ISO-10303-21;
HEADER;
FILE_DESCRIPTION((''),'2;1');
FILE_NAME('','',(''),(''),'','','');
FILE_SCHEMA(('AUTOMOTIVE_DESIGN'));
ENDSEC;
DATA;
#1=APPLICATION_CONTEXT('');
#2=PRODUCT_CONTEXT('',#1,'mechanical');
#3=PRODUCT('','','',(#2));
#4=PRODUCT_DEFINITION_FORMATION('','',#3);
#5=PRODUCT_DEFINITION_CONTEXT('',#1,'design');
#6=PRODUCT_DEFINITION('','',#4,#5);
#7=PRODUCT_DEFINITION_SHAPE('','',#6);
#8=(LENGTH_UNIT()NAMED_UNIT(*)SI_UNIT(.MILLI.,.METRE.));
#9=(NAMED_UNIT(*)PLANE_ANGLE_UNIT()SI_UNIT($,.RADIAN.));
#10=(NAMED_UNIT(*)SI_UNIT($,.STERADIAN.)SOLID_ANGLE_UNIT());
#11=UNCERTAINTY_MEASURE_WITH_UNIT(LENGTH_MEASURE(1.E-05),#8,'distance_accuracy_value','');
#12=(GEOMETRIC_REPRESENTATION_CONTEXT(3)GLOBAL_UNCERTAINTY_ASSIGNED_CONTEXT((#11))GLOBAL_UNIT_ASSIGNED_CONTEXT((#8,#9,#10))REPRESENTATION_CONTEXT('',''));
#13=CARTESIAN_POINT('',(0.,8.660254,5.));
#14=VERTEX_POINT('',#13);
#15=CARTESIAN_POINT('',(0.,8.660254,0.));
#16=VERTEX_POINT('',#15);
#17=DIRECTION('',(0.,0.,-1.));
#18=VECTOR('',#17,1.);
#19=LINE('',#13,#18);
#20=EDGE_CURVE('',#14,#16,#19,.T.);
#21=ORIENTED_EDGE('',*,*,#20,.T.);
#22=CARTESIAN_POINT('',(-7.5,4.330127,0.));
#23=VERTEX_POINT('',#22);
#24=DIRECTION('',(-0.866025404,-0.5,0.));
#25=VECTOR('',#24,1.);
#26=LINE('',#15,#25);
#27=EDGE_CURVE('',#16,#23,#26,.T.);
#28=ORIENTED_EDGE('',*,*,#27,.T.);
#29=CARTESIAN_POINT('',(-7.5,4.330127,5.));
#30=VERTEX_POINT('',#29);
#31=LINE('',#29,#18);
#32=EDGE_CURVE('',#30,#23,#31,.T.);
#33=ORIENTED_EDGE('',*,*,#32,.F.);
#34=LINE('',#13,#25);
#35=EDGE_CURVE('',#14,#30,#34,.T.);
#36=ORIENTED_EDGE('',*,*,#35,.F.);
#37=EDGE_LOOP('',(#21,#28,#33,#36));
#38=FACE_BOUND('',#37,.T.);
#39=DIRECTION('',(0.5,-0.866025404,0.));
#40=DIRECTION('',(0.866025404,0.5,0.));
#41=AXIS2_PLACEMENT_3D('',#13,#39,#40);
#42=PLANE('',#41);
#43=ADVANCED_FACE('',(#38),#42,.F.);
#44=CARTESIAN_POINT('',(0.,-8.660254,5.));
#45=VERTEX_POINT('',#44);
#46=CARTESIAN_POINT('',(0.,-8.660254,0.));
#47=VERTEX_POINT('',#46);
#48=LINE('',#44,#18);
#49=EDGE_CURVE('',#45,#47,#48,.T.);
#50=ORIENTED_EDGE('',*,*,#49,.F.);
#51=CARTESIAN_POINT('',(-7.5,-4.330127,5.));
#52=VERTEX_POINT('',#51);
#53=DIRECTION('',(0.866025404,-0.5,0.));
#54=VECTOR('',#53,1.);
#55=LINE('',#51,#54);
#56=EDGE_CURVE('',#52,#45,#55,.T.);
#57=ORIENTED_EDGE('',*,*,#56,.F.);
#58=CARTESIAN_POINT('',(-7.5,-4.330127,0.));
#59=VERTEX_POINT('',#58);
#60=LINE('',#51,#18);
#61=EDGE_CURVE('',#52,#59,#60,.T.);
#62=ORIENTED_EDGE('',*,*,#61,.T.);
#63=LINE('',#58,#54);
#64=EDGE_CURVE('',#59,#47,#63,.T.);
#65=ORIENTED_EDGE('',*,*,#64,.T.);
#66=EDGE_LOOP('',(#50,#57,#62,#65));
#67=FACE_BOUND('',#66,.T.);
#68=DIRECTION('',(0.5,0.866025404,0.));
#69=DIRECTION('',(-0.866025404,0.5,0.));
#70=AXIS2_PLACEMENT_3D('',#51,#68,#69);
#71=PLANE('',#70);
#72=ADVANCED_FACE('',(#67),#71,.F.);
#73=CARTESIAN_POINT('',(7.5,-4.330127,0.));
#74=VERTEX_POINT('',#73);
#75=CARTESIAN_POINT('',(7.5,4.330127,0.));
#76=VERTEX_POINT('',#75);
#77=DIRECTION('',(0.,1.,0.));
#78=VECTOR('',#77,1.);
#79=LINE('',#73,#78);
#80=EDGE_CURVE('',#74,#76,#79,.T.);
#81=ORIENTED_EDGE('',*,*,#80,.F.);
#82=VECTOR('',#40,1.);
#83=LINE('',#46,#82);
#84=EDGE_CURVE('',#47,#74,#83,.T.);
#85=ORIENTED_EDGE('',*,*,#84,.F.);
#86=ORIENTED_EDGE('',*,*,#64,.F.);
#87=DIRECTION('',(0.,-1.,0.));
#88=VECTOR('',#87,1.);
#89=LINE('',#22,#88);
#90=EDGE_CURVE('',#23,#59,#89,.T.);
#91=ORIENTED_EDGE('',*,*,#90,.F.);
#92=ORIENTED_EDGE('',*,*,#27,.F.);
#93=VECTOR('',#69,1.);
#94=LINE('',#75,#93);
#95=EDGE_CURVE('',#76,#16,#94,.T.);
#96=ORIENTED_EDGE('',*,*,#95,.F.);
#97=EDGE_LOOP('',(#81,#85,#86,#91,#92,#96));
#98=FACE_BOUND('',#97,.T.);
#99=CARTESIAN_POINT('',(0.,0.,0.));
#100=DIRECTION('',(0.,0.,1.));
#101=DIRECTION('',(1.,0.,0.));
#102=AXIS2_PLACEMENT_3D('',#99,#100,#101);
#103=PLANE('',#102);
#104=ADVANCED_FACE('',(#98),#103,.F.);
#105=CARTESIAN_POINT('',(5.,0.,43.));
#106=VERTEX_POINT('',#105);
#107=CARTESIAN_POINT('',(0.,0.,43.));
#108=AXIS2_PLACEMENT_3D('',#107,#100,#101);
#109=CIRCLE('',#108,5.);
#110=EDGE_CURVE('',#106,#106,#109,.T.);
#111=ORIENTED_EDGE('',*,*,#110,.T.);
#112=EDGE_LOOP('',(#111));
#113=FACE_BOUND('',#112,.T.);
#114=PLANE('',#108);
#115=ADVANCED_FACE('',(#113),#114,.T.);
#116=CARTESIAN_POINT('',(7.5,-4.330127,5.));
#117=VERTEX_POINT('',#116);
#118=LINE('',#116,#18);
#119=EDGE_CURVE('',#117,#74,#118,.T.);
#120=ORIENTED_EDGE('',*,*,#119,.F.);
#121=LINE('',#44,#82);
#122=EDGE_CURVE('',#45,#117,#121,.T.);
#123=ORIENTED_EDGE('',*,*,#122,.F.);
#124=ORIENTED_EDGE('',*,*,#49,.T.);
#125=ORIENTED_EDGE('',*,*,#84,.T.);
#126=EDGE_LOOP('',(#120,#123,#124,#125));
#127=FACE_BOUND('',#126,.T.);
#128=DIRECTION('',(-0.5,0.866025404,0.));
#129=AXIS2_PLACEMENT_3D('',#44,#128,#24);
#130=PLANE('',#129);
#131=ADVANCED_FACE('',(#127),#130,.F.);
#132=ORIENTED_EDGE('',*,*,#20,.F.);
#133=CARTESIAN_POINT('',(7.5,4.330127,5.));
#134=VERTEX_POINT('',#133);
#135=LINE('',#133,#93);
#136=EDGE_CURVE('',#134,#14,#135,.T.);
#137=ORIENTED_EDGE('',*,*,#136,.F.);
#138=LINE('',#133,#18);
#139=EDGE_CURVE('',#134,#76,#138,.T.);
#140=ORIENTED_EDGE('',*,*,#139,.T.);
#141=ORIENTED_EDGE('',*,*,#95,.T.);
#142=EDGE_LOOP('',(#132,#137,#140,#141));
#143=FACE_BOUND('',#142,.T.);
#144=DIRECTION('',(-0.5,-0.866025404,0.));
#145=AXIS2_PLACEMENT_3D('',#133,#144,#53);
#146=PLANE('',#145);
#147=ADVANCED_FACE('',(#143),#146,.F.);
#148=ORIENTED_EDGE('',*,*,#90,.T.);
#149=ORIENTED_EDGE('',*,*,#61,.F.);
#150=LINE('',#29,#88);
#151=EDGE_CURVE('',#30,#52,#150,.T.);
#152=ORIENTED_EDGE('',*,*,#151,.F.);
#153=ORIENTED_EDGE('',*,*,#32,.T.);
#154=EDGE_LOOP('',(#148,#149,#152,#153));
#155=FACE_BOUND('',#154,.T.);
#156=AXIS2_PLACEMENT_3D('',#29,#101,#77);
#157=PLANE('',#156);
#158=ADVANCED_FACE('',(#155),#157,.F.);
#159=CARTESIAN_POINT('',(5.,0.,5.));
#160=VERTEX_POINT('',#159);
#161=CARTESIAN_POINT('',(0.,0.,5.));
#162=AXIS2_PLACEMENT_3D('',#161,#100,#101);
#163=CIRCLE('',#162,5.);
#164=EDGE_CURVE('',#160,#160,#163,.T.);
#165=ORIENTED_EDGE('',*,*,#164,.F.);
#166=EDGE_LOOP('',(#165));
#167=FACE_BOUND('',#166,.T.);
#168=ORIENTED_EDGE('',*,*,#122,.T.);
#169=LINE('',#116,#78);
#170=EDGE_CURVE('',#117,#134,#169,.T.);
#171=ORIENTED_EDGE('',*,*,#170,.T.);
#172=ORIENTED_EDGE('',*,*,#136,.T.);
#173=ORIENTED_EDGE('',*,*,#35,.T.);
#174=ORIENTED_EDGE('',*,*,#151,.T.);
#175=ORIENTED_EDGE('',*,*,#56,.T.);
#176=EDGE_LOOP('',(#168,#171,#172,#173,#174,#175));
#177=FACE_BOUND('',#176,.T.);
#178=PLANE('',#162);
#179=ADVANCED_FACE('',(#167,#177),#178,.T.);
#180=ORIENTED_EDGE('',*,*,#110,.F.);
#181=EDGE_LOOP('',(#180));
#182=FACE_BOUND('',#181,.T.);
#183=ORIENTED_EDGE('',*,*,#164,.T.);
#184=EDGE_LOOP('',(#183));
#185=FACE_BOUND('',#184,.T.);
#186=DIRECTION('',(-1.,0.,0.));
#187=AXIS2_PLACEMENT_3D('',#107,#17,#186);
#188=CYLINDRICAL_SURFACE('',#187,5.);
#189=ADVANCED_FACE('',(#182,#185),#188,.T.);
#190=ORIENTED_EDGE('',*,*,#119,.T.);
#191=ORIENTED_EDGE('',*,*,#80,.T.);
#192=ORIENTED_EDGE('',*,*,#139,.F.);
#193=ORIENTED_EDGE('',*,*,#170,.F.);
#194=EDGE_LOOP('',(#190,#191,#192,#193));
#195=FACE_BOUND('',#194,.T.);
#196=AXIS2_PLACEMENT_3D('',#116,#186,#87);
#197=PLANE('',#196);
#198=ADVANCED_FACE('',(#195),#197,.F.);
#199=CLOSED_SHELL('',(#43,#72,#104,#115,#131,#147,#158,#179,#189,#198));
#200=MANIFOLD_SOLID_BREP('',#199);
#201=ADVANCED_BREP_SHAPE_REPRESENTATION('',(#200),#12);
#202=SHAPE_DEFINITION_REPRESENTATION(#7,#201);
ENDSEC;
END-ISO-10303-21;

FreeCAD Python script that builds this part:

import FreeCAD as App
import Part
import Sketcher
from FreeCAD import Vector
Q = App.Units.Quantity

doc = App.newDocument("Part")
body = doc.addObject("PartDesign::Body", "Body")

# Sketch on XY plane
sketch1 = body.newObject("Sketcher::SketchObject", "Sketch")
sketch1.AttachmentSupport = (doc.getObject("XY_Plane"), [""])
sketch1.MapMode = "FlatFace"
sketch1.addGeometry(Part.LineSegment(Vector(0, 8.660254, 0), Vector(-7.5, 4.330127, 0)), False)
sketch1.addGeometry(Part.LineSegment(Vector(-7.5, 4.330127, 0), Vector(-7.5, -4.330127, 0)), False)
sketch1.addGeometry(Part.LineSegment(Vector(-7.5, -4.330127, 0), Vector(0, -8.660254, 0)), False)
sketch1.addGeometry(Part.LineSegment(Vector(0, -8.660254, 0), Vector(7.5, -4.330127, 0)), False)
sketch1.addGeometry(Part.LineSegment(Vector(7.5, -4.330127, 0), Vector(7.5, 4.330127, 0)), False)
sketch1.addGeometry(Part.LineSegment(Vector(7.5, 4.330127, 0), Vector(0, 8.660254, 0)), False)
sketch1.addConstraint(Sketcher.Constraint("Coincident", 0, 2, 1, 1))
sketch1.addConstraint(Sketcher.Constraint("Coincident", 1, 2, 2, 1))
sketch1.addConstraint(Sketcher.Constraint("Coincident", 2, 2, 3, 1))
sketch1.addConstraint(Sketcher.Constraint("Coincident", 3, 2, 4, 1))
sketch1.addConstraint(Sketcher.Constraint("Coincident", 4, 2, 5, 1))
sketch1.addConstraint(Sketcher.Constraint("Coincident", 5, 2, 0, 1))
sketch1.addConstraint(Sketcher.Constraint("Vertical", 1))
sketch1.addConstraint(Sketcher.Constraint("Vertical", 4))
sketch1.addConstraint(Sketcher.Constraint("Symmetric", 0, 2, 3, 2, -1, 1))
sketch1.addConstraint(Sketcher.Constraint("Symmetric", 2, 2, 5, 2, -1, 1))
sketch1.addConstraint(Sketcher.Constraint("PointOnObject", 2, 2, -2))
sketch1.addConstraint(Sketcher.Constraint("Parallel", 2, 5))
sketch1.addConstraint(Sketcher.Constraint("Horizontal", 1, 2, 3, 2))
sketch1.addConstraint(Sketcher.Constraint("Angle", 0, Q("-150 deg")))
sketch1.addConstraint(Sketcher.Constraint("DistanceX", 1, 2, 3, 2, Q("15 mm")))
sketch1.addConstraint(Sketcher.Constraint("DistanceY", 1, 2, 1, 1, Q("8.660254 mm")))
pad1 = body.newObject("PartDesign::Pad", "Pad")
pad1.Profile = sketch1
pad1.Length = 5

# Sketch on XY plane
sketch2 = body.newObject("Sketcher::SketchObject", "Sketch001")
sketch2.AttachmentSupport = (doc.getObject("XY_Plane"), [""])
sketch2.MapMode = "FlatFace"
sketch2.AttachmentOffset = App.Placement(Vector(0, 0, 5), App.Rotation())
sketch2.addGeometry(Part.Circle(Vector(0, 0, 0), Vector(0, 0, 1), 5), False)
sketch2.addConstraint(Sketcher.Constraint("Coincident", 0, 3, -1, 1))
sketch2.addConstraint(Sketcher.Constraint("Diameter", 0, Q("10 mm")))
pad2 = body.newObject("PartDesign::Pad", "Pad001")
pad2.Profile = sketch2
pad2.Length = 38

doc.recompute()
